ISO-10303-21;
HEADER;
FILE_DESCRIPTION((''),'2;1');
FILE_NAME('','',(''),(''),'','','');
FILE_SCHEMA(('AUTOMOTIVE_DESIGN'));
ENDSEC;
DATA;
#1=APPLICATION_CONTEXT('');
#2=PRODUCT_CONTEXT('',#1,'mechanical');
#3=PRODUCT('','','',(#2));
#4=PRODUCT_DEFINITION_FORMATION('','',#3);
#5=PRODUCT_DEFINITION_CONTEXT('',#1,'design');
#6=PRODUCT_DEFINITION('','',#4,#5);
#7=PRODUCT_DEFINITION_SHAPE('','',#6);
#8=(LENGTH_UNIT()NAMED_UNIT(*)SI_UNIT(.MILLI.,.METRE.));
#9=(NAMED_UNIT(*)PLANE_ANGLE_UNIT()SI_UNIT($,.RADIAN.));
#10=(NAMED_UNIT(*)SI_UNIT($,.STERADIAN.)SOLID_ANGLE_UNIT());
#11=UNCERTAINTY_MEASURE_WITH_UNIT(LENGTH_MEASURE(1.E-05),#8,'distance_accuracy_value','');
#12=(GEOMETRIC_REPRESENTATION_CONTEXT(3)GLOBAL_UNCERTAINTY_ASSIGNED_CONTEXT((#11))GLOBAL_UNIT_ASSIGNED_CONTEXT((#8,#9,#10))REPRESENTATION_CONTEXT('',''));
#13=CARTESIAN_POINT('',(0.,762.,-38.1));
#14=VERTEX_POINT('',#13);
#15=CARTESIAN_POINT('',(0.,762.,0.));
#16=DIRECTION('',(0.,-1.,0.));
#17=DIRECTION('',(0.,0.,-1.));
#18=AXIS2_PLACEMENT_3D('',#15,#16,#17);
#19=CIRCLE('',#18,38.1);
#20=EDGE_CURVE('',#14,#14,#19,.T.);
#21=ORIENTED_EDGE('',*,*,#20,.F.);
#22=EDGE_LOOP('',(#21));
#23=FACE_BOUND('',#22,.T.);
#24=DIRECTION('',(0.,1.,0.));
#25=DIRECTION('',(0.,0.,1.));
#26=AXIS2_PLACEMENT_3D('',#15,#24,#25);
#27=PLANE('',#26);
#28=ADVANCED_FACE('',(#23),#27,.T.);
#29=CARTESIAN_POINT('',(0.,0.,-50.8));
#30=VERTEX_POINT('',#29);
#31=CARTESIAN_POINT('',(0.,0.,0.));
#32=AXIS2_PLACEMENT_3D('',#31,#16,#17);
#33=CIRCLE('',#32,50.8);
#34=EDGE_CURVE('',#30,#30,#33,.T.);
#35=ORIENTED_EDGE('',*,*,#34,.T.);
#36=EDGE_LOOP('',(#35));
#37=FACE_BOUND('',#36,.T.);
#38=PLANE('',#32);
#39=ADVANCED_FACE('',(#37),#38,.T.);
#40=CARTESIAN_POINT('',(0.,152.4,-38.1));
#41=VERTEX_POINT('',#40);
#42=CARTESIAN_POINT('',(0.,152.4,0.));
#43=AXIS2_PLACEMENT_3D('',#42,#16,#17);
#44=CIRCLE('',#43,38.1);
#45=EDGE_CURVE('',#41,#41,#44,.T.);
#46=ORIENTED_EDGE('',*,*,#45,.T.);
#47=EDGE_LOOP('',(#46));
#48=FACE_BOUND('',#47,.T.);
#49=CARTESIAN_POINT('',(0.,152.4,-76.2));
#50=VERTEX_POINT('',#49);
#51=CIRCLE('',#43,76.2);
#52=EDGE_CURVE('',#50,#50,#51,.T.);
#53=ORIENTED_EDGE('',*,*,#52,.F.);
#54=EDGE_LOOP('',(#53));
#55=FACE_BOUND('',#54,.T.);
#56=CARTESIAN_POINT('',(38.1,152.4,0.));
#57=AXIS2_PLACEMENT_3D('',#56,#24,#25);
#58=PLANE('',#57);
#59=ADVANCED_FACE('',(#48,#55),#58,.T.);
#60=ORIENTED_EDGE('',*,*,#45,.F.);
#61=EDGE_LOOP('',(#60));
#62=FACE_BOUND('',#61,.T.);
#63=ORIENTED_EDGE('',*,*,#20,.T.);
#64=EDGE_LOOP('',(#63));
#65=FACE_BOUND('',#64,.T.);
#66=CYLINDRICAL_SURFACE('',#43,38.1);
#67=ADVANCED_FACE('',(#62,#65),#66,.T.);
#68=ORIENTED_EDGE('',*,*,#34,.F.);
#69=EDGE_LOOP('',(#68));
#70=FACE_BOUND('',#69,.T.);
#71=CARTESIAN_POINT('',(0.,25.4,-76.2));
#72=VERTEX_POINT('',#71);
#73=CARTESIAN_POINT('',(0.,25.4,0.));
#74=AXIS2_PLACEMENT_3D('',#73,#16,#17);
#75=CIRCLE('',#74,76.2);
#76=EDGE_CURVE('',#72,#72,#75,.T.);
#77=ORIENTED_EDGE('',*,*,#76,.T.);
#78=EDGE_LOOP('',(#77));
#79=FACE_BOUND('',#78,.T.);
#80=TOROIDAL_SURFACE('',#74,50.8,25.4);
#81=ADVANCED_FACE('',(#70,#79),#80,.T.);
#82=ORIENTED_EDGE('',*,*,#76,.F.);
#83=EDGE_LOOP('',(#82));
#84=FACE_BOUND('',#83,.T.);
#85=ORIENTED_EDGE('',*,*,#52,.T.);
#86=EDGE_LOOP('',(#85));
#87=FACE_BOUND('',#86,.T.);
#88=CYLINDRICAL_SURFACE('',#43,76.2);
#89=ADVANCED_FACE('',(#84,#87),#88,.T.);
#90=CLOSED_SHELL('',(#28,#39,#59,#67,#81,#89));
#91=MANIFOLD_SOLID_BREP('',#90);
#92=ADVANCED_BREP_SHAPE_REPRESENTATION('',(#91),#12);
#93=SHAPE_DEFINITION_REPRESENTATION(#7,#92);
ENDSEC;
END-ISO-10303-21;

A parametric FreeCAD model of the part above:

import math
import FreeCAD as App
import Part
import Sketcher

V = App.Vector
Q = App.Units.Quantity

doc = App.newDocument("Part")
body = doc.addObject("PartDesign::Body", "Body")

# Sketch on XY plane
sketch1 = body.newObject("Sketcher::SketchObject", "Sketch")
sketch1.AttachmentSupport = (doc.getObject("XY_Plane"), [""])
sketch1.MapMode = "FlatFace"
sketch1.addGeometry([
    Part.LineSegment(V(0, 0, 0), V(51, 0, 0)),  # 0
    Part.ArcOfCircle(Part.Circle(V(51, 25, 0), V(0, 0, 1), 25), math.radians(-90), math.radians(0)),  # 1
    Part.LineSegment(V(76, 25, 0), V(76, 152, 0)),  # 2
    Part.LineSegment(V(76, 152, 0), V(38, 152, 0)),  # 3
    Part.LineSegment(V(38, 152, 0), V(38, 762, 0)),  # 4
    Part.LineSegment(V(38, 762, 0), V(0, 762, 0)),  # 5
    Part.LineSegment(V(0, 762, 0), V(0, 0, 0)),  # 6
], False)
sketch1.addConstraint([
    Sketcher.Constraint("Tangent", 0, 2, 1, 1),
    Sketcher.Constraint("Tangent", 1, 2, 2, 1),
    Sketcher.Constraint("Coincident", 2, 2, 3, 1),
    Sketcher.Constraint("Coincident", 3, 2, 4, 1),
    Sketcher.Constraint("Coincident", 4, 2, 5, 1),
    Sketcher.Constraint("Coincident", 5, 2, 6, 1),
    Sketcher.Constraint("Coincident", 6, 2, 0, 1),
    Sketcher.Constraint("Horizontal", 0),
    Sketcher.Constraint("Vertical", 2),
    Sketcher.Constraint("Horizontal", 3),
    Sketcher.Constraint("Vertical", 4),
    Sketcher.Constraint("Horizontal", 5),
    Sketcher.Constraint("Vertical", 6),
    Sketcher.Constraint("Coincident", 6, 2, -1, 1),
    Sketcher.Constraint("Equal", 3, 5),
    Sketcher.Constraint("Radius", 1, Q("1 in")),
    Sketcher.Constraint("DistanceX", 0, 1, 0, 2, Q("2 in")),
    Sketcher.Constraint("DistanceY", 2, 1, 2, 2, Q("5 in")),
    Sketcher.Constraint("DistanceY", 4, 1, 4, 2, Q("24 in")),
])
revolution = body.newObject("PartDesign::Revolution", "Revolution")
revolution.Profile = sketch1
revolution.ReferenceAxis = (sketch1, ["V_Axis"])
revolution.Angle = 360

doc.recompute()
